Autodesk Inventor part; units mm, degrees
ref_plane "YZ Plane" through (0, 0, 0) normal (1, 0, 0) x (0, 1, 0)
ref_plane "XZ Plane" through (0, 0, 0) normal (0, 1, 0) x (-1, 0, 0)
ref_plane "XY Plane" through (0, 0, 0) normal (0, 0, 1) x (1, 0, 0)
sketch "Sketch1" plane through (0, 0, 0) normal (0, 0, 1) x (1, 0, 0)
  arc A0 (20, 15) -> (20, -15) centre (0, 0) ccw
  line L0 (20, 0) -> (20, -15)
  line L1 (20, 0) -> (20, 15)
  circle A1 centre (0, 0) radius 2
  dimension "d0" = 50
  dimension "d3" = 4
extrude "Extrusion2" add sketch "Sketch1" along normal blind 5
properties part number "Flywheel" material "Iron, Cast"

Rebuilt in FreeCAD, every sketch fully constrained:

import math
import FreeCAD as App
import Part
import Sketcher

doc = App.newDocument("Part")
body = doc.addObject("PartDesign::Body", "Body")

# Sketch on XY plane
sketch1 = doc.addObject("Sketcher::SketchObject", "Sketch")
body.addObject(sketch1)
sketch1.AttachmentSupport = (doc.XY_Plane, [""])
sketch1.MapMode = "FlatFace"
sketch1.addGeometry(Part.LineSegment(App.Vector(20, -15, 0), App.Vector(20, 15, 0)), False)
sketch1.addGeometry(Part.ArcOfCircle(Part.Circle(App.Vector(0, 0, 0), App.Vector(0, 0, 1), 25), math.radians(37), math.radians(323)), False)
sketch1.addGeometry(Part.Circle(App.Vector(0, 0, 0), App.Vector(0, 0, 1), 2), False)
sketch1.addConstraint(Sketcher.Constraint("Coincident", 0, 1, 1, 2))
sketch1.addConstraint(Sketcher.Constraint("Coincident", 1, 1, 0, 2))
sketch1.addConstraint(Sketcher.Constraint("Vertical", 0))
sketch1.addConstraint(Sketcher.Constraint("Coincident", 1, 3, -1, 1))
sketch1.addConstraint(Sketcher.Constraint("Coincident", 2, 3, -1, 1))
sketch1.addConstraint(Sketcher.Constraint("Diameter", 2, 4.0))
sketch1.addConstraint(Sketcher.Constraint("Radius", 1, 25.0))
sketch1.addConstraint(Sketcher.Constraint("DistanceY", 0, 1, 0, 2, 30.0))
pad1 = doc.addObject("PartDesign::Pad", "Pad")
body.addObject(pad1)
pad1.Profile = sketch1
pad1.Length = 5

doc.recompute()
